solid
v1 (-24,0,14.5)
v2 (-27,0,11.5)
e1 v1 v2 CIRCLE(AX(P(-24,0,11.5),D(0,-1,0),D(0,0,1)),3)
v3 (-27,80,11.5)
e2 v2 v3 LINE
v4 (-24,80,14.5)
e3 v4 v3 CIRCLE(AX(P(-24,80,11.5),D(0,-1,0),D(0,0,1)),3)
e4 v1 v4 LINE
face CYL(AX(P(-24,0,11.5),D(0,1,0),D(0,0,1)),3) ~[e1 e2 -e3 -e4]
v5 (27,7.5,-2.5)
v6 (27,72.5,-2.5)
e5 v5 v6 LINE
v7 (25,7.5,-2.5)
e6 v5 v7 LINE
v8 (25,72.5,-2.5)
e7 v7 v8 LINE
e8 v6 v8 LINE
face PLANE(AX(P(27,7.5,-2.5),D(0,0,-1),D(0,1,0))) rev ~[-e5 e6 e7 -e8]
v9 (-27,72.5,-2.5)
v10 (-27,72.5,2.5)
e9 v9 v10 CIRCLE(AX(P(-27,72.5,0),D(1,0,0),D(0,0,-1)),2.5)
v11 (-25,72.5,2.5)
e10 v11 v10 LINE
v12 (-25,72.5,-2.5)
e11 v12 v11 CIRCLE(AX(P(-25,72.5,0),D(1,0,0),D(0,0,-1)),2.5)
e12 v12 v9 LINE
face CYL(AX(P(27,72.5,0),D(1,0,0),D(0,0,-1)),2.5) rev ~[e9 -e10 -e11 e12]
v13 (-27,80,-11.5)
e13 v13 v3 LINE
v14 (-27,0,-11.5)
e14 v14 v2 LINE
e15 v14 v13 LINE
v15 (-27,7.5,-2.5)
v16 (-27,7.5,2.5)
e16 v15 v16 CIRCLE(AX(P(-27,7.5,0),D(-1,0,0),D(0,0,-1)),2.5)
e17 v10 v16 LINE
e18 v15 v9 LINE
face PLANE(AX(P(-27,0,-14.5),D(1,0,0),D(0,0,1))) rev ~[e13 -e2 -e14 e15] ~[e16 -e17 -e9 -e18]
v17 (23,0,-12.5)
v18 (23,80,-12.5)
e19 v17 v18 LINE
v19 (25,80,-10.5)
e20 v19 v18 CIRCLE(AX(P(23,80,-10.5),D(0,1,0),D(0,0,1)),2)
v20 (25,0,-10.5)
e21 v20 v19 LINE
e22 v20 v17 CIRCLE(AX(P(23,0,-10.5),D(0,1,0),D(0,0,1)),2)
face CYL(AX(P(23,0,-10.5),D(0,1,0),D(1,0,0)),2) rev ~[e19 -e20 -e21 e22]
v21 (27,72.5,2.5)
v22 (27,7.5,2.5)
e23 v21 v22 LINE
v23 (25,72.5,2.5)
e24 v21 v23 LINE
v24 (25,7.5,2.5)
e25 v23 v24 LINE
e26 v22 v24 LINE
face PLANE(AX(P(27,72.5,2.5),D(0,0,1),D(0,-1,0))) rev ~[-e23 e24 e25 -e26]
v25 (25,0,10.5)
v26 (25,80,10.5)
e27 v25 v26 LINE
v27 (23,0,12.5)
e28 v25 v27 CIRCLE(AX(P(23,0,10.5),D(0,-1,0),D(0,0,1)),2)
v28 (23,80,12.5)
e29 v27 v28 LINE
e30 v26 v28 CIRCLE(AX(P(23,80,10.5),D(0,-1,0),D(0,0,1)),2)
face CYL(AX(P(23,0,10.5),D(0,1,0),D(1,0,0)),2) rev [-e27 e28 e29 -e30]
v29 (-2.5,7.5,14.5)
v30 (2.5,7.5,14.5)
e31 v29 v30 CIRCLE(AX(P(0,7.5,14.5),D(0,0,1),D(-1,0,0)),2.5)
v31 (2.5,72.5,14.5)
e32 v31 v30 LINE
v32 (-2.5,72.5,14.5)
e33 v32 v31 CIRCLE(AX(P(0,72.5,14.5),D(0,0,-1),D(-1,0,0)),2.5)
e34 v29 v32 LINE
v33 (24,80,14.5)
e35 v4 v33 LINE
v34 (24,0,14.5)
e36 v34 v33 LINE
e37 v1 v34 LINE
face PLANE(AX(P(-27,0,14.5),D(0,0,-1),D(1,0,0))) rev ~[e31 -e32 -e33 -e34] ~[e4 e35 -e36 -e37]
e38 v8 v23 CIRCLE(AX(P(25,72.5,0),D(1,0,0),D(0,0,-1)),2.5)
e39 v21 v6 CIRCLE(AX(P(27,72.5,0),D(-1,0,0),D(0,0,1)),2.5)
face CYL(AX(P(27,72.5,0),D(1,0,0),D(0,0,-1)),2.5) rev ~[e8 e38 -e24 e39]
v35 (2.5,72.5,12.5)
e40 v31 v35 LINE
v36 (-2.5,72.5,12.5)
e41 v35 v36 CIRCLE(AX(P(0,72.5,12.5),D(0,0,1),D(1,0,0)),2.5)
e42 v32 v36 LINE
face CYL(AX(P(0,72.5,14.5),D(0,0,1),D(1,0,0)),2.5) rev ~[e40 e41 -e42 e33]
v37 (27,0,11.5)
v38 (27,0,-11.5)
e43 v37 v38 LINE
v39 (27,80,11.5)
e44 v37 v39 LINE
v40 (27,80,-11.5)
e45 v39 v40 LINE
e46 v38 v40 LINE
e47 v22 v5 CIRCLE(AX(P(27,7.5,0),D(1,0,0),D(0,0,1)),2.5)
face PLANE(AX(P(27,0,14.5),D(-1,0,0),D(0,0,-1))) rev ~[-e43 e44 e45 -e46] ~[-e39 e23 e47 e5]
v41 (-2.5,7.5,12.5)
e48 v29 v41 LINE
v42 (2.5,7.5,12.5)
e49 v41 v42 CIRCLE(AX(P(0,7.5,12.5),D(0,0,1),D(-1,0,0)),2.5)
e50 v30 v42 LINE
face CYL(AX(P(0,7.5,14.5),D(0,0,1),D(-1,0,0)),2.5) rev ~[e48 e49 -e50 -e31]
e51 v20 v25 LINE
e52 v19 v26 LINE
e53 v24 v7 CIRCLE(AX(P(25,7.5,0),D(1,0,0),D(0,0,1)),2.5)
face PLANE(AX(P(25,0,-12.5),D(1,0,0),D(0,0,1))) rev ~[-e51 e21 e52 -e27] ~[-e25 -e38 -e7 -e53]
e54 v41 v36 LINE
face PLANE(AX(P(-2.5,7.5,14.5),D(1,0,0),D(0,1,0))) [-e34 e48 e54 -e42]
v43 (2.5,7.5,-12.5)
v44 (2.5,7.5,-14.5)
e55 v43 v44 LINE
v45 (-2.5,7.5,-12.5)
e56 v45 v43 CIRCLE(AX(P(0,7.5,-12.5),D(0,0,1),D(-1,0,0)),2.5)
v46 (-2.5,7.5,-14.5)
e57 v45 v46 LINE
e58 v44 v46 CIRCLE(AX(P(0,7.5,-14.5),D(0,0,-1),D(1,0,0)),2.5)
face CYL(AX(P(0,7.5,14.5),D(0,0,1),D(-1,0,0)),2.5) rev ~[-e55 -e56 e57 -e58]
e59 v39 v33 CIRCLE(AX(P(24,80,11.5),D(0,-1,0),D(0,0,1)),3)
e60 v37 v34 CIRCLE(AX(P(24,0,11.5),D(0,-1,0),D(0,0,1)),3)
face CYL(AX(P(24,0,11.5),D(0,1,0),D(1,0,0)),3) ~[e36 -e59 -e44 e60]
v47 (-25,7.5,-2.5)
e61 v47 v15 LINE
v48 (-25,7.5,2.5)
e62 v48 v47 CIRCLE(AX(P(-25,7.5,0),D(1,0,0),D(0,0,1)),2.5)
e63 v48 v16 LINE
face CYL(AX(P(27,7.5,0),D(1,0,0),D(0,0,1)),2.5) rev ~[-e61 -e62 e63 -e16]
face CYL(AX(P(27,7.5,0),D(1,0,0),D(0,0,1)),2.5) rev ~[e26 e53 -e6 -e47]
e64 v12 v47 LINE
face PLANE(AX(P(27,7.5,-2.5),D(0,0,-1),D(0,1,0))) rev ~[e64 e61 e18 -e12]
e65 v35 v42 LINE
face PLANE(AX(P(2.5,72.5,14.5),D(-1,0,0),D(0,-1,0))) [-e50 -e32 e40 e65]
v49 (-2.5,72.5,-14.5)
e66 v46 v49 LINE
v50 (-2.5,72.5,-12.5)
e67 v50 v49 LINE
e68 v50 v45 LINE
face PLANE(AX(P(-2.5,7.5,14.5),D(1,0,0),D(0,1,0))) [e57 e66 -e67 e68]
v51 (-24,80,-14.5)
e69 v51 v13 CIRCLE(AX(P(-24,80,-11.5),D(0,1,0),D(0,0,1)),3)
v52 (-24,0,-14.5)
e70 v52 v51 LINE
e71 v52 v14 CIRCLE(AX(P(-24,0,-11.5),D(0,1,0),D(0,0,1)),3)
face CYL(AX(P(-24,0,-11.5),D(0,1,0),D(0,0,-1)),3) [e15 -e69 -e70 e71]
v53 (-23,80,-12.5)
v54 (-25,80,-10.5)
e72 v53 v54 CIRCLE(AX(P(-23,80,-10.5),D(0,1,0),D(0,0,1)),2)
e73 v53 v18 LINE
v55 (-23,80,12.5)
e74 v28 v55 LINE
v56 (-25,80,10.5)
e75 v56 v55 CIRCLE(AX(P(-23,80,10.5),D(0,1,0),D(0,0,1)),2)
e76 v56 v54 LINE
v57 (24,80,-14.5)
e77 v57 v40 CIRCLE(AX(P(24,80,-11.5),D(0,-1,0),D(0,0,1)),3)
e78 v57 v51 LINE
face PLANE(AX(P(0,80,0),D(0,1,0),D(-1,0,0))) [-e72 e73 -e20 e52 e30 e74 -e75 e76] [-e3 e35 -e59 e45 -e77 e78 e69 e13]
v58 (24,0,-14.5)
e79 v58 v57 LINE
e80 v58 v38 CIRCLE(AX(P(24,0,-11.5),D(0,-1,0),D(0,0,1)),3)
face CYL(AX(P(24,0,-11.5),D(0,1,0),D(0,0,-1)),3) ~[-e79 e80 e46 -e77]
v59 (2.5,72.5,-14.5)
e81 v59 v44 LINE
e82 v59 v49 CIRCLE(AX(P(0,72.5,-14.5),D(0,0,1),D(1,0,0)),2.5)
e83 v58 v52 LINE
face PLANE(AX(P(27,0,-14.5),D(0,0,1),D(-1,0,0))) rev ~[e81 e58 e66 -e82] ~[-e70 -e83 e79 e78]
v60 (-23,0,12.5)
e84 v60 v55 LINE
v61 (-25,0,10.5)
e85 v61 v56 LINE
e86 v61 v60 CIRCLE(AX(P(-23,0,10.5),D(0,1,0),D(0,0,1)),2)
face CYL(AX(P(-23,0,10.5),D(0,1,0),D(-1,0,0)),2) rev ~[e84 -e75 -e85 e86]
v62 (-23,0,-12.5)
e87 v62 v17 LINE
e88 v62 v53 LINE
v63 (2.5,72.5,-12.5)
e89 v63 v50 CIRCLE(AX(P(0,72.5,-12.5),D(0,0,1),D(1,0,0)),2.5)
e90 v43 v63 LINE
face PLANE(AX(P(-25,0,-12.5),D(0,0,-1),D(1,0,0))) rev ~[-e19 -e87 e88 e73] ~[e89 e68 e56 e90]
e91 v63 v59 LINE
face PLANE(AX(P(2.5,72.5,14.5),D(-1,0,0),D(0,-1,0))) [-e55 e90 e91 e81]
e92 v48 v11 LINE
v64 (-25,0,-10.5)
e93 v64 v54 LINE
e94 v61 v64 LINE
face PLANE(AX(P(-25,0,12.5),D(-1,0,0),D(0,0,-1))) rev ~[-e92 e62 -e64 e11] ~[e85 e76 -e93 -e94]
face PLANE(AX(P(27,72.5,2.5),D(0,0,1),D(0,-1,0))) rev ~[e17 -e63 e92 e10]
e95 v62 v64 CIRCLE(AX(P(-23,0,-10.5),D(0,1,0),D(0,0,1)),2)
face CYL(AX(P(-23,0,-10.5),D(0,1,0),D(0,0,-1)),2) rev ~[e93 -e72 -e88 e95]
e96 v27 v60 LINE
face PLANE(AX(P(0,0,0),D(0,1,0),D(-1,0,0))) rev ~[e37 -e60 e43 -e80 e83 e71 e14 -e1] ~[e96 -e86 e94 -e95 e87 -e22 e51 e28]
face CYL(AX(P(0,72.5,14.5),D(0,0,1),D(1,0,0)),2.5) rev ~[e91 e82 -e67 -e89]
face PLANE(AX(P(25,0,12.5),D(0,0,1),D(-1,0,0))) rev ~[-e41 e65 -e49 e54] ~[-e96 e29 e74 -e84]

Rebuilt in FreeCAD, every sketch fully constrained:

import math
import FreeCAD as App
import Part
import Sketcher
from FreeCAD import Vector
Q = App.Units.Quantity


def edges_at(feature, points):
    """Names of the edges that pass closest to the given points."""
    edges = feature.Shape.Edges
    near = lambda p: min(range(len(edges)), key=lambda i: edges[i].distToShape(Part.Vertex(*p))[0])
    return sorted({f"Edge{near(p) + 1}" for p in points})

doc = App.newDocument("Part")
body = doc.addObject("PartDesign::Body", "Body")

# Sketch on XZ plane
sketch1 = body.newObject("Sketcher::SketchObject", "Sketch")
sketch1.AttachmentSupport = (doc.getObject("XZ_Plane"), [""])
sketch1.MapMode = "FlatFace"
sketch1.addGeometry([
    Part.LineSegment(Vector(27, -14, 0), Vector(-27, -14, 0)),  # 0
    Part.LineSegment(Vector(-27, -14, 0), Vector(-27, 14, 0)),  # 1
    Part.LineSegment(Vector(-27, 14, 0), Vector(27, 14, 0)),  # 2
    Part.LineSegment(Vector(27, 14, 0), Vector(27, -14, 0)),  # 3
    Part.LineSegment(Vector(25, -12, 0), Vector(25, 12, 0)),  # 4
    Part.LineSegment(Vector(25, 12, 0), Vector(-25, 12, 0)),  # 5
    Part.LineSegment(Vector(-25, 12, 0), Vector(-25, -12, 0)),  # 6
    Part.LineSegment(Vector(-25, -12, 0), Vector(25, -12, 0)),  # 7
], False)
sketch1.addConstraint([
    Sketcher.Constraint("Coincident", 0, 2, 1, 1),
    Sketcher.Constraint("Coincident", 1, 2, 2, 1),
    Sketcher.Constraint("Coincident", 2, 2, 3, 1),
    Sketcher.Constraint("Coincident", 3, 2, 0, 1),
    Sketcher.Constraint("Coincident", 4, 2, 5, 1),
    Sketcher.Constraint("Coincident", 5, 2, 6, 1),
    Sketcher.Constraint("Coincident", 6, 2, 7, 1),
    Sketcher.Constraint("Coincident", 7, 2, 4, 1),
    Sketcher.Constraint("Horizontal", 0),
    Sketcher.Constraint("Vertical", 1),
    Sketcher.Constraint("Horizontal", 2),
    Sketcher.Constraint("Vertical", 3),
    Sketcher.Constraint("Vertical", 4),
    Sketcher.Constraint("Horizontal", 5),
    Sketcher.Constraint("Vertical", 6),
    Sketcher.Constraint("Horizontal", 7),
    Sketcher.Constraint("Symmetric", 0, 2, 2, 2, -1, 1),
    Sketcher.Constraint("Symmetric", 4, 2, 6, 2, -1, 1),
    Sketcher.Constraint("DistanceX", 5, 2, 5, 1, Q("50 mm")),
    Sketcher.Constraint("DistanceY", 4, 1, 4, 2, Q("25 mm")),
    Sketcher.Constraint("DistanceX", 4, 2, 2, 2, Q("2 mm")),
    Sketcher.Constraint("DistanceY", 4, 2, 2, 2, Q("2 mm")),
])
pad1 = body.newObject("PartDesign::Pad", "Pad")
pad1.Profile = sketch1
pad1.Length = 80
pad1.Reversed = True

# Sketch on XY plane
sketch2 = body.newObject("Sketcher::SketchObject", "Sketch001")
sketch2.AttachmentSupport = (doc.getObject("XY_Plane"), [""])
sketch2.MapMode = "FlatFace"
sketch2.AttachmentOffset = App.Placement(Vector(0, 0, 14.5), App.Rotation())
sketch2.addGeometry([
    Part.ArcOfCircle(Part.Circle(Vector(0, 72.5, 0), Vector(0, 0, 1), 2.5), math.radians(0), math.radians(180)),
    Part.LineSegment(Vector(-2.5, 72.5, 0), Vector(-2.5, 7.5, 0)),
    Part.ArcOfCircle(Part.Circle(Vector(0, 7.5, 0), Vector(0, 0, 1), 2.5), math.radians(180), math.radians(360)),
    Part.LineSegment(Vector(2.5, 7.5, 0), Vector(2.5, 72.5, 0)),
], False)
sketch2.addConstraint([
    Sketcher.Constraint("Tangent", 0, 2, 1, 1),
    Sketcher.Constraint("Tangent", 1, 2, 2, 1),
    Sketcher.Constraint("Tangent", 2, 2, 3, 1),
    Sketcher.Constraint("Tangent", 3, 2, 0, 1),
    Sketcher.Constraint("Vertical", 1),
    Sketcher.Constraint("Vertical", 3),
    Sketcher.Constraint("PointOnObject", 0, 3, -2),
    Sketcher.Constraint("Radius", 0, Q("2.5 mm")),
    Sketcher.Constraint("DistanceY", 1, 2, 1, 1, Q("65 mm")),
    Sketcher.Constraint("DistanceY", -1, 1, 0, 3, Q("72.5 mm")),
])
pocket1 = body.newObject("PartDesign::Pocket", "Pocket")
pocket1.Profile = sketch2
pocket1.Length = 29

# Sketch on YZ plane
sketch3 = body.newObject("Sketcher::SketchObject", "Sketch002")
sketch3.AttachmentSupport = (doc.getObject("YZ_Plane"), [""])
sketch3.MapMode = "FlatFace"
sketch3.AttachmentOffset = App.Placement(Vector(0, 0, 27), App.Rotation())
sketch3.addGeometry([
    Part.ArcOfCircle(Part.Circle(Vector(72.5, 0, 0), Vector(0, 0, 1), 2.5), math.radians(-90), math.radians(90)),
    Part.LineSegment(Vector(72.5, 2.5, 0), Vector(7.5, 2.5, 0)),
    Part.ArcOfCircle(Part.Circle(Vector(7.5, 0, 0), Vector(0, 0, 1), 2.5), math.radians(90), math.radians(270)),
    Part.LineSegment(Vector(7.5, -2.5, 0), Vector(72.5, -2.5, 0)),
], False)
sketch3.addConstraint([
    Sketcher.Constraint("Tangent", 0, 2, 1, 1),
    Sketcher.Constraint("Tangent", 1, 2, 2, 1),
    Sketcher.Constraint("Tangent", 2, 2, 3, 1),
    Sketcher.Constraint("Tangent", 3, 2, 0, 1),
    Sketcher.Constraint("Horizontal", 1),
    Sketcher.Constraint("Horizontal", 3),
    Sketcher.Constraint("PointOnObject", 0, 3, -1),
    Sketcher.Constraint("Radius", 0, Q("2.5 mm")),
    Sketcher.Constraint("DistanceX", 1, 2, 1, 1, Q("65 mm")),
    Sketcher.Constraint("DistanceX", -1, 1, 0, 3, Q("72.5 mm")),
])
pocket2 = body.newObject("PartDesign::Pocket", "Pocket001")
pocket2.Profile = sketch3
pocket2.Length = 54
doc.recompute()

fillet = body.newObject("PartDesign::Fillet", "Fillet")
fillet.Base = (pocket2, edges_at(pocket2, [
    (-25, 40, -12.5),
    (-25, 40, 12.5),
    (25, 40, 12.5),
    (25, 40, -12.5),
]))
fillet.Radius = 2
doc.recompute()

fillet2 = body.newObject("PartDesign::Fillet", "Fillet001")
fillet2.Base = (fillet, edges_at(fillet, [
    (27, 40, 14.5),
    (27, 40, -14.5),
    (-27, 40, -14.5),
    (-27, 40, 14.5),
]))
fillet2.Radius = 3

doc.recompute()
